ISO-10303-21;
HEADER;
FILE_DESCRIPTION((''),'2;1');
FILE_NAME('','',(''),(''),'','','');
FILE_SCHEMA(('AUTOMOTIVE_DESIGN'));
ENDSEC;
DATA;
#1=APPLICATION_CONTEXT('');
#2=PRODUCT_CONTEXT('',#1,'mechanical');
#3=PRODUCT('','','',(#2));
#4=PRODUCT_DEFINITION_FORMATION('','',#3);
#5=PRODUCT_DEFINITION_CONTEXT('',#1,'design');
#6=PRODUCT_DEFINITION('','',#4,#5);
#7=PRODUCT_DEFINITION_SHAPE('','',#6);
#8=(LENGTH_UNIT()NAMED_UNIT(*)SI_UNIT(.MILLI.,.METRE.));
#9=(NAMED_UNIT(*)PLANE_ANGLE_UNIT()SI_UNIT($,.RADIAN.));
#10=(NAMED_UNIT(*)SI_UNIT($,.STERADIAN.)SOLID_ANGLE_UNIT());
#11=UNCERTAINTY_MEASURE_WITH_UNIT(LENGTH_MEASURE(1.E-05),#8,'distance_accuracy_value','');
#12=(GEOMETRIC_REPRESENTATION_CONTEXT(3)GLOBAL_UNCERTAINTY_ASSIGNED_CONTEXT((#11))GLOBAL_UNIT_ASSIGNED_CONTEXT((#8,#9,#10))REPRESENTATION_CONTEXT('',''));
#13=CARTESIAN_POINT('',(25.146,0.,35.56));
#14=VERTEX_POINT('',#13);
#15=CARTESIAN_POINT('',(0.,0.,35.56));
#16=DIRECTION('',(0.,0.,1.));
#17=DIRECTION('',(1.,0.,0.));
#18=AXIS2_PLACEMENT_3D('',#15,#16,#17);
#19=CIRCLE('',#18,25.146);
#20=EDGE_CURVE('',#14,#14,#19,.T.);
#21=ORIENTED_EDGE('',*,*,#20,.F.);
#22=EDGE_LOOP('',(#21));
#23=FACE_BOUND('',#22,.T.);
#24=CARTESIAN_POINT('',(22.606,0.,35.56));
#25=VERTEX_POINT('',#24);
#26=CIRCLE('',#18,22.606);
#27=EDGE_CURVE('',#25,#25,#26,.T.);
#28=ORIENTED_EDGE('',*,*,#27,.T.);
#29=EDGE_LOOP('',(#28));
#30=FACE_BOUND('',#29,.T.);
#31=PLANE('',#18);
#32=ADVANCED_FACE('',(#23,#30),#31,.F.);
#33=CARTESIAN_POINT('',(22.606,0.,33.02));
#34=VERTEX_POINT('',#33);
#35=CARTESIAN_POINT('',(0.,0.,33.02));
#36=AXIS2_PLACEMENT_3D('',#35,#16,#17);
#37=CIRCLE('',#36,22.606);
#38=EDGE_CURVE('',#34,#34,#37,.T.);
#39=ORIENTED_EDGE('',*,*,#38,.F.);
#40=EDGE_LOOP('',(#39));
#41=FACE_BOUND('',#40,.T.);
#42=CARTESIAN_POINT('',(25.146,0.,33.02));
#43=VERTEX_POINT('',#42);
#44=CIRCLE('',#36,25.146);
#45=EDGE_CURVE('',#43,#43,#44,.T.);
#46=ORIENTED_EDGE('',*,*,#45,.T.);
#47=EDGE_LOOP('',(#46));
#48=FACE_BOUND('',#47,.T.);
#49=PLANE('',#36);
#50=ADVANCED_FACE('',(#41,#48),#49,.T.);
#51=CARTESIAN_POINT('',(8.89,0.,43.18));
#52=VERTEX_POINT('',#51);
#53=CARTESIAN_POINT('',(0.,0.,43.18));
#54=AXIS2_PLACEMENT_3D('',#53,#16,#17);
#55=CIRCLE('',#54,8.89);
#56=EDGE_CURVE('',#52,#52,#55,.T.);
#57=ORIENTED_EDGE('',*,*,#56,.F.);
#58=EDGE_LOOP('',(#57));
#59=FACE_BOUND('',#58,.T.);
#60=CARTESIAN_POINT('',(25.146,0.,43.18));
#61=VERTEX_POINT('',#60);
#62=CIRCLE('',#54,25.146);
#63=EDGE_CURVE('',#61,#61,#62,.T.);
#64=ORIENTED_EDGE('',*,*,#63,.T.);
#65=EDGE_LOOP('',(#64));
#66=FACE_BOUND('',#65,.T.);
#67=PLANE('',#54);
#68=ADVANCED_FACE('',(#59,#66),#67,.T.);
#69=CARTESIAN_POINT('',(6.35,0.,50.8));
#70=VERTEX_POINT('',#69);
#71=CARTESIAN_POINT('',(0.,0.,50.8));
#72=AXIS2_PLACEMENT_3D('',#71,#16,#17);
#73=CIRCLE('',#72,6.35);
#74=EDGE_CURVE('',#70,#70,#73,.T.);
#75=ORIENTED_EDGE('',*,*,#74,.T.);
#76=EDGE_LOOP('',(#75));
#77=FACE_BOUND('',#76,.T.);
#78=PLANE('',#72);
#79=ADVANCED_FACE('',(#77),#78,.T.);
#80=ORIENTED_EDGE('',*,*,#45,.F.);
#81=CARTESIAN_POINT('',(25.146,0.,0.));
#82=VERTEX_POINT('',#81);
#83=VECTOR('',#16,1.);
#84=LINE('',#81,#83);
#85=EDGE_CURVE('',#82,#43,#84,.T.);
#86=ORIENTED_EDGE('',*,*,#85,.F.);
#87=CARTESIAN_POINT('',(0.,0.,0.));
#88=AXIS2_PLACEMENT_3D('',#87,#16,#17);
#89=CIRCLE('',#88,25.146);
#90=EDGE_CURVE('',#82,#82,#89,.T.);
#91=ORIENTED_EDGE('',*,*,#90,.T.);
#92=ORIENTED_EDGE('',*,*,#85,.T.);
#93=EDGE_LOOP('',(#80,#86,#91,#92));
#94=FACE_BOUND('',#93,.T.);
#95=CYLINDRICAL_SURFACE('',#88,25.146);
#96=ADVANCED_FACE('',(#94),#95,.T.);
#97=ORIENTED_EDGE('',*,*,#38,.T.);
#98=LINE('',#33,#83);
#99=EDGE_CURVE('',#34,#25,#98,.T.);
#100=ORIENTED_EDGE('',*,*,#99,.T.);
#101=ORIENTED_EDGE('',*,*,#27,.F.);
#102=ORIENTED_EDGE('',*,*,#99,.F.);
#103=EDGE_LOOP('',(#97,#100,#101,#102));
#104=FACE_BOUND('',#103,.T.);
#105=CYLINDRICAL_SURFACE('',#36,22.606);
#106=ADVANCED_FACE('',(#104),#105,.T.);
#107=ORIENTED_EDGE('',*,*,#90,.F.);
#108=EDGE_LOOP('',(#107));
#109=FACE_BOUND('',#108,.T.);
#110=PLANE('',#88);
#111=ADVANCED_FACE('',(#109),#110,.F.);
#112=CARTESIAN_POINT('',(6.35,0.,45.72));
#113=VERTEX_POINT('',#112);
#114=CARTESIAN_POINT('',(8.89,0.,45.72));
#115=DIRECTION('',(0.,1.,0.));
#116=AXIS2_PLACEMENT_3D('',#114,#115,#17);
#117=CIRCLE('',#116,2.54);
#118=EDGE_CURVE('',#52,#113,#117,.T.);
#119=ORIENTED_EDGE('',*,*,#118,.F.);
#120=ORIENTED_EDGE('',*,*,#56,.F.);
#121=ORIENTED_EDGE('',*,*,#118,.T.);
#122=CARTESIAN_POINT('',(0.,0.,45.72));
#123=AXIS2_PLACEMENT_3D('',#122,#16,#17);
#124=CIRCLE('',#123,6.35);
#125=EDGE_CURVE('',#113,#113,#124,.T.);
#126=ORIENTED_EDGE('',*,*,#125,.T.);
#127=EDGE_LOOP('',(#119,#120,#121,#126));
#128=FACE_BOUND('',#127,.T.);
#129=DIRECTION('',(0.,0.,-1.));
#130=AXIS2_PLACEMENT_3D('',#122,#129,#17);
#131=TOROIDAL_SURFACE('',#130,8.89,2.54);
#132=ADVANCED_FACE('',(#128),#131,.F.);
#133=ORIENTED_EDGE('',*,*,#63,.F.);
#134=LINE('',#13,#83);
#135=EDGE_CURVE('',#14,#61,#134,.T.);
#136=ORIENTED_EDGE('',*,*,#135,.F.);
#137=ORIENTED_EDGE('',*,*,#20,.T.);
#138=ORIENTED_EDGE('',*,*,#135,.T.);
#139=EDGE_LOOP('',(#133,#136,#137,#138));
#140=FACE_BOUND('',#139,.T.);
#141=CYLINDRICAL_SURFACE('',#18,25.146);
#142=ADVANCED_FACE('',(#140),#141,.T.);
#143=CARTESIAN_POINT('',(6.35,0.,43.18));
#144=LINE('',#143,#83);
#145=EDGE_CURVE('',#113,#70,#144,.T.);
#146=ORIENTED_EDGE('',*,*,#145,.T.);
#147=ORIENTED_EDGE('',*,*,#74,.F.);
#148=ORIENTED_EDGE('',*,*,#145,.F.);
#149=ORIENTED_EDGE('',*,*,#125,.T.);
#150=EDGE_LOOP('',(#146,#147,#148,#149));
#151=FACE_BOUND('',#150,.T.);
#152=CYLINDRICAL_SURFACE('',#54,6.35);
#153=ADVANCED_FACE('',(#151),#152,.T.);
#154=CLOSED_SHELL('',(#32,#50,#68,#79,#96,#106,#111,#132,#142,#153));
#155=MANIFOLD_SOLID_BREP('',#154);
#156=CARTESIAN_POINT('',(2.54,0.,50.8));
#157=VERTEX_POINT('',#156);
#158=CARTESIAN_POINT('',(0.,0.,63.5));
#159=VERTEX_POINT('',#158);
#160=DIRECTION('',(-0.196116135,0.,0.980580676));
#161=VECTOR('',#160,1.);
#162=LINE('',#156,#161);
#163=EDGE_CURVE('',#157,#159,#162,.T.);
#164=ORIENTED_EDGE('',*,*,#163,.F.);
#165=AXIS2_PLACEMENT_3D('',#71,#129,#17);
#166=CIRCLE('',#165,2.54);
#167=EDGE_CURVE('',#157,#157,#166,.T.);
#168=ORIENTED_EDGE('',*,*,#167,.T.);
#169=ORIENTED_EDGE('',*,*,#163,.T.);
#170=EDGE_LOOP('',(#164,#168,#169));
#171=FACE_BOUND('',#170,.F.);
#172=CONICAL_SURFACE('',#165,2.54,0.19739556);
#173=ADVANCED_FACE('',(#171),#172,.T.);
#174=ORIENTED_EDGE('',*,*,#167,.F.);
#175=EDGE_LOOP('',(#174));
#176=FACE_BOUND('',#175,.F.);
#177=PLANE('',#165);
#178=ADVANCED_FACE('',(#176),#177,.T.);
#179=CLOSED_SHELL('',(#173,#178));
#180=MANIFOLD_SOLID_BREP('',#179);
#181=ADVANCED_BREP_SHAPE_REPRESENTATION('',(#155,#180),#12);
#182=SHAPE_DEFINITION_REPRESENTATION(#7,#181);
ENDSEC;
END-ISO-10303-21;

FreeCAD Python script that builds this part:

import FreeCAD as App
import Part
import Sketcher

V = App.Vector
Q = App.Units.Quantity


def edges_at(feature, points):
    """Names of the edges that pass closest to the given points."""
    edges = feature.Shape.Edges
    near = lambda p: min(range(len(edges)), key=lambda i: edges[i].distToShape(Part.Vertex(*p))[0])
    return sorted({f"Edge{near(p) + 1}" for p in points})

doc = App.newDocument("Part")
params = doc.addObject("Spreadsheet::Sheet", "Params")
for row, (alias, value) in enumerate([
    ("sketch1_height", "2 in"),
    ("sketch1_width", "0.1 in"),
    ("sketch1_height2", "1.3 in"),
    ("sketch1_width2", "0.99 in"),
    ("sketch1_width3", "0.74 in"),
    ("revolution_angle", "360 deg"),
    ("fillet_radius", "0.1 in"),
    ("sketch2_width", "0.1 in"),
    ("sketch2_height", "0.5 in"),
    ("revolution2_angle", "360 deg"),
], start=1):
    params.set(f"A{row}", alias)
    params.set(f"B{row}", "=" + value)
    params.setAlias(f"B{row}", alias)

body = doc.addObject("PartDesign::Body", "Body")

# Sketch on XZ plane
sketch1 = body.newObject("Sketcher::SketchObject", "Sketch")
sketch1.AttachmentSupport = (doc.getObject("XZ_Plane"), [""])
sketch1.MapMode = "FlatFace"
sketch1.addGeometry([
    Part.LineSegment(V(0, 0, 0), V(25.1, 0, 0)),  # 0
    Part.LineSegment(V(25.1, 0, 0), V(25.1, 33, 0)),  # 1
    Part.LineSegment(V(25.1, 33, 0), V(22.6, 33, 0)),  # 2
    Part.LineSegment(V(22.6, 33, 0), V(22.6, 35.6, 0)),  # 3
    Part.LineSegment(V(22.6, 35.6, 0), V(25.1, 35.6, 0)),  # 4
    Part.LineSegment(V(25.1, 35.6, 0), V(25.1, 43.2, 0)),  # 5
    Part.LineSegment(V(25.1, 43.2, 0), V(6.3, 43.2, 0)),  # 6
    Part.LineSegment(V(6.3, 43.2, 0), V(6.3, 50.8, 0)),  # 7
    Part.LineSegment(V(6.3, 50.8, 0), V(0, 50.8, 0)),  # 8
    Part.LineSegment(V(0, 50.8, 0), V(0, 0, 0)),  # 9
], False)
sketch1.addConstraint([
    Sketcher.Constraint("Coincident", 0, 2, 1, 1),
    Sketcher.Constraint("Coincident", 1, 2, 2, 1),
    Sketcher.Constraint("Coincident", 2, 2, 3, 1),
    Sketcher.Constraint("Coincident", 3, 2, 4, 1),
    Sketcher.Constraint("Coincident", 4, 2, 5, 1),
    Sketcher.Constraint("Coincident", 5, 2, 6, 1),
    Sketcher.Constraint("Coincident", 6, 2, 7, 1),
    Sketcher.Constraint("Coincident", 7, 2, 8, 1),
    Sketcher.Constraint("Coincident", 8, 2, 9, 1),
    Sketcher.Constraint("Coincident", 9, 2, 0, 1),
    Sketcher.Constraint("Horizontal", 0),
    Sketcher.Constraint("Vertical", 1),
    Sketcher.Constraint("Horizontal", 2),
    Sketcher.Constraint("Vertical", 3),
    Sketcher.Constraint("Horizontal", 4),
    Sketcher.Constraint("Vertical", 5),
    Sketcher.Constraint("Horizontal", 6),
    Sketcher.Constraint("Vertical", 7),
    Sketcher.Constraint("Horizontal", 8),
    Sketcher.Constraint("Vertical", 9),
    Sketcher.Constraint("Coincident", 9, 2, -1, 1),
    Sketcher.Constraint("Vertical", 1, 2, 4, 2),
    Sketcher.Constraint("Equal", 4, 3),
    Sketcher.Constraint("Equal", 5, 7),
    Sketcher.Constraint("DistanceY", 9, 2, 9, 1, Q("2 in")),
    Sketcher.Constraint("DistanceX", 2, 2, 2, 1, Q("0.1 in")),
    Sketcher.Constraint("DistanceY", 1, 1, 1, 2, Q("1.3 in")),
    Sketcher.Constraint("DistanceX", 0, 1, 0, 2, Q("0.99 in")),
    Sketcher.Constraint("DistanceX", 6, 2, 6, 1, Q("0.74 in")),
])
sketch1.setExpression("Constraints[24]", "Params.sketch1_height")
sketch1.setExpression("Constraints[25]", "Params.sketch1_width")
sketch1.setExpression("Constraints[26]", "Params.sketch1_height2")
sketch1.setExpression("Constraints[27]", "Params.sketch1_width2")
sketch1.setExpression("Constraints[28]", "Params.sketch1_width3")
revolution = body.newObject("PartDesign::Revolution", "Revolution")
revolution.Profile = sketch1
revolution.ReferenceAxis = (sketch1, ["V_Axis"])
revolution.setExpression("Angle", "Params.revolution_angle")
doc.recompute()

fillet = body.newObject("PartDesign::Fillet", "Fillet")
fillet.Base = (revolution, edges_at(revolution, [(-6.35, 0, 43.18)]))
fillet.setExpression("Radius", "Params.fillet_radius")
body2 = doc.addObject("PartDesign::Body", "Body001")

# Sketch on XZ plane
sketch2 = body2.newObject("Sketcher::SketchObject", "Sketch001")
sketch2.AttachmentSupport = (doc.getObject("XZ_Plane001"), [""])
sketch2.MapMode = "FlatFace"
sketch2.addGeometry([
    Part.LineSegment(V(0, 50.8, 0), V(2.5, 50.8, 0)),
    Part.LineSegment(V(2.5, 50.8, 0), V(0, 63.5, 0)),
    Part.LineSegment(V(0, 63.5, 0), V(0, 50.8, 0)),
], False)
sketch2.addConstraint([
    Sketcher.Constraint("Coincident", 0, 2, 1, 1),
    Sketcher.Constraint("Coincident", 1, 2, 2, 1),
    Sketcher.Constraint("Coincident", 2, 2, 0, 1),
    Sketcher.Constraint("Horizontal", 0),
    Sketcher.Constraint("Vertical", 2),
    Sketcher.Constraint("PointOnObject", 1, 2, -2),
    Sketcher.Constraint("DistanceX", 0, 1, 0, 2, Q("0.1 in")),
    Sketcher.Constraint("DistanceY", 2, 2, 2, 1, Q("0.5 in")),
    Sketcher.Constraint("DistanceY", -1, 1, 0, 2, Q("2 in")),
])
sketch2.setExpression("Constraints[6]", "Params.sketch2_width")
sketch2.setExpression("Constraints[7]", "Params.sketch2_height")
revolution2 = body2.newObject("PartDesign::Revolution", "Revolution001")
revolution2.Profile = sketch2
revolution2.ReferenceAxis = (sketch2, ["V_Axis"])
revolution2.setExpression("Angle", "Params.revolution2_angle")

doc.recompute()
